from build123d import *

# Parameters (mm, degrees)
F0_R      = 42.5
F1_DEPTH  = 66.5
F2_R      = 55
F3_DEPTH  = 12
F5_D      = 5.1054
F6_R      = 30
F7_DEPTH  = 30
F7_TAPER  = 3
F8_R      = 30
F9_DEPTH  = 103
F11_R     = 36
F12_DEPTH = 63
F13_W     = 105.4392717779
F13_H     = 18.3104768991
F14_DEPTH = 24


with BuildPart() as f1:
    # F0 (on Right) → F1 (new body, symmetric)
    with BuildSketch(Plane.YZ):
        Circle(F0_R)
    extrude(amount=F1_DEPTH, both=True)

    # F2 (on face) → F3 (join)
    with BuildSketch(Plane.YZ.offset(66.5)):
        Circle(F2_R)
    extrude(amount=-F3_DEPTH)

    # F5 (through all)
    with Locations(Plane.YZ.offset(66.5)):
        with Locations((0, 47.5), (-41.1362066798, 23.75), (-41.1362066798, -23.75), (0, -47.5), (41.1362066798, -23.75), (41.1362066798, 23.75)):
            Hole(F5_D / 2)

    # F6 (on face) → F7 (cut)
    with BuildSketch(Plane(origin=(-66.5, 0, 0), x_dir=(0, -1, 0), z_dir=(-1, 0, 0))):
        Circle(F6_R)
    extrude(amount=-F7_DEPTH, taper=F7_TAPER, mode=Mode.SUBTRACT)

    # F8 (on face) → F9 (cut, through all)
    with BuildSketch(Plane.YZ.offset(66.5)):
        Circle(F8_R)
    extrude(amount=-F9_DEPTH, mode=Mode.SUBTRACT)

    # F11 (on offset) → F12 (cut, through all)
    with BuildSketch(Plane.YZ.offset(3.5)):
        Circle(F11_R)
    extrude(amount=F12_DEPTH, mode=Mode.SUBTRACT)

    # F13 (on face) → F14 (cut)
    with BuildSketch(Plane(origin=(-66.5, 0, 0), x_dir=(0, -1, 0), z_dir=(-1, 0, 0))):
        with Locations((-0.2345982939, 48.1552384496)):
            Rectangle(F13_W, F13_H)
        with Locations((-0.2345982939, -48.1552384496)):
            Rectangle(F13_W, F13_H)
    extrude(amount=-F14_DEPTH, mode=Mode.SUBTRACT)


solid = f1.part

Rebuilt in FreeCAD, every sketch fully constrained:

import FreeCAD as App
import Part
import Sketcher
from FreeCAD import Vector
Q = App.Units.Quantity

doc = App.newDocument("Part")
params = doc.addObject("Spreadsheet::Sheet", "Params")
for row, (alias, value) in enumerate([
    ("sketch1_diameter", "85 mm"),
    ("pad1_length", "133 mm"),
    ("sketch2_diameter", "110 mm"),
    ("pad2_length", "12 mm"),
    ("hole_diameter", "5.1054 mm"),
    ("sketch4_diameter", "60 mm"),
    ("pocket1_length", "30 mm"),
    ("pocket1_taper", "-3 deg"),
    ("sketch5_diameter", "60 mm"),
    ("pocket2_length", "103 mm"),
    ("sketch6_diameter", "72 mm"),
    ("pocket4_length", "24 mm"),
], start=1):
    params.set(f"A{row}", alias)
    params.set(f"B{row}", "=" + value)
    params.setAlias(f"B{row}", alias)

body = doc.addObject("PartDesign::Body", "Body")

# Sketch on YZ plane
sketch1 = body.newObject("Sketcher::SketchObject", "Sketch")
sketch1.AttachmentSupport = (doc.getObject("YZ_Plane"), [""])
sketch1.MapMode = "FlatFace"
sketch1.addGeometry(Part.Circle(Vector(0, 0, 0), Vector(0, 0, 1), 42), False)
sketch1.addConstraint([
    Sketcher.Constraint("Coincident", 0, 3, -1, 1),
    Sketcher.Constraint("Diameter", 0, Q("85 mm")),
])
sketch1.setExpression("Constraints[1]", "Params.sketch1_diameter")
pad1 = body.newObject("PartDesign::Pad", "Pad")
pad1.Profile = sketch1
pad1.setExpression("Length", "Params.pad1_length")
pad1.Midplane = True

# Sketch on YZ plane
sketch2 = body.newObject("Sketcher::SketchObject", "Sketch001")
sketch2.AttachmentSupport = (doc.getObject("YZ_Plane"), [""])
sketch2.MapMode = "FlatFace"
sketch2.AttachmentOffset = App.Placement(Vector(0, 0, 66.5), App.Rotation())
sketch2.addGeometry(Part.Circle(Vector(0, 0, 0), Vector(0, 0, 1), 55), False)
sketch2.addConstraint([
    Sketcher.Constraint("Coincident", 0, 3, -1, 1),
    Sketcher.Constraint("Diameter", 0, Q("110 mm")),
])
sketch2.setExpression("Constraints[1]", "Params.sketch2_diameter")
pad2 = body.newObject("PartDesign::Pad", "Pad001")
pad2.Profile = sketch2
pad2.setExpression("Length", "Params.pad2_length")
pad2.Reversed = True

# Sketch on YZ plane
sketch3 = body.newObject("Sketcher::SketchObject", "Sketch002")
sketch3.AttachmentSupport = (doc.getObject("YZ_Plane"), [""])
sketch3.MapMode = "FlatFace"
sketch3.AttachmentOffset = App.Placement(Vector(0, 0, 66.5), App.Rotation())
sketch3.addGeometry([
    Part.Circle(Vector(0, 47.5, 0), Vector(0, 0, 1), 2.6),  # 0
    Part.Circle(Vector(-41.1, 23.8, 0), Vector(0, 0, 1), 2.6),  # 1
    Part.Circle(Vector(-41.1, -23.8, 0), Vector(0, 0, 1), 2.6),  # 2
    Part.Circle(Vector(0, -47.5, 0), Vector(0, 0, 1), 2.6),  # 3
    Part.Circle(Vector(41.1, -23.8, 0), Vector(0, 0, 1), 2.6),  # 4
    Part.Circle(Vector(41.1, 23.8, 0), Vector(0, 0, 1), 2.6),  # 5
], False)
sketch3.addConstraint([
    Sketcher.Constraint("Equal", 0, 1),
    Sketcher.Constraint("Equal", 1, 2),
    Sketcher.Constraint("Equal", 2, 3),
    Sketcher.Constraint("Equal", 3, 4),
    Sketcher.Constraint("Equal", 4, 5),
    Sketcher.Constraint("Symmetric", 0, 3, 3, 3, -1, 1),
    Sketcher.Constraint("Symmetric", 1, 3, 4, 3, -1, 1),
    Sketcher.Constraint("Symmetric", 2, 3, 5, 3, -1, 1),
    Sketcher.Constraint("Symmetric", 2, 3, 4, 3, -2),
    Sketcher.Constraint("PointOnObject", 0, 3, -2),
    Sketcher.Constraint("DistanceY", 3, 3, 0, 3, Q("95 mm")),
    Sketcher.Constraint("Diameter", 0, Q("5.1054 mm")),
    Sketcher.Constraint("DistanceY", 2, 3, 1, 3, Q("47.5 mm")),
    Sketcher.Constraint("DistanceX", 1, 3, -1, 1, Q("41.136207 mm")),
])
doc.recompute()
hole = body.newObject("PartDesign::Hole", "Hole")
hole.Profile = sketch3
hole.ThreadType = "None"
hole.setExpression("Diameter", "Params.hole_diameter")
hole.DepthType = "ThroughAll"

# Sketch on YZ plane
sketch4 = body.newObject("Sketcher::SketchObject", "Sketch003")
sketch4.AttachmentSupport = (doc.getObject("YZ_Plane"), [""])
sketch4.MapMode = "FlatFace"
sketch4.AttachmentOffset = App.Placement(Vector(0, 0, -66.5), App.Rotation())
sketch4.addGeometry(Part.Circle(Vector(0, 0, 0), Vector(0, 0, 1), 30), False)
sketch4.addConstraint([
    Sketcher.Constraint("Coincident", 0, 3, -1, 1),
    Sketcher.Constraint("Diameter", 0, Q("60 mm")),
])
sketch4.setExpression("Constraints[1]", "Params.sketch4_diameter")
pocket1 = body.newObject("PartDesign::Pocket", "Pocket")
pocket1.Profile = sketch4
pocket1.setExpression("Length", "Params.pocket1_length")
pocket1.Reversed = True
pocket1.setExpression("TaperAngle", "Params.pocket1_taper")

# Sketch on YZ plane
sketch5 = body.newObject("Sketcher::SketchObject", "Sketch004")
sketch5.AttachmentSupport = (doc.getObject("YZ_Plane"), [""])
sketch5.MapMode = "FlatFace"
sketch5.AttachmentOffset = App.Placement(Vector(0, 0, 66.5), App.Rotation())
sketch5.addGeometry(Part.Circle(Vector(0, 0, 0), Vector(0, 0, 1), 30), False)
sketch5.addConstraint([
    Sketcher.Constraint("Coincident", 0, 3, -1, 1),
    Sketcher.Constraint("Diameter", 0, Q("60 mm")),
])
sketch5.setExpression("Constraints[1]", "Params.sketch5_diameter")
pocket2 = body.newObject("PartDesign::Pocket", "Pocket001")
pocket2.Profile = sketch5
pocket2.setExpression("Length", "Params.pocket2_length")

# Sketch on YZ plane
sketch6 = body.newObject("Sketcher::SketchObject", "Sketch005")
sketch6.AttachmentSupport = (doc.getObject("YZ_Plane"), [""])
sketch6.MapMode = "FlatFace"
sketch6.AttachmentOffset = App.Placement(Vector(0, 0, 3.5), App.Rotation())
sketch6.addGeometry(Part.Circle(Vector(0, 0, 0), Vector(0, 0, 1), 36), False)
sketch6.addConstraint([
    Sketcher.Constraint("Coincident", 0, 3, -1, 1),
    Sketcher.Constraint("Diameter", 0, Q("72 mm")),
])
sketch6.setExpression("Constraints[1]", "Params.sketch6_diameter")
pocket3 = body.newObject("PartDesign::Pocket", "Pocket002")
pocket3.Profile = sketch6
pocket3.Type = "ThroughAll"
pocket3.Reversed = True

# Sketch on YZ plane
sketch7 = body.newObject("Sketcher::SketchObject", "Sketch006")
sketch7.AttachmentSupport = (doc.getObject("YZ_Plane"), [""])
sketch7.MapMode = "FlatFace"
sketch7.AttachmentOffset = App.Placement(Vector(0, 0, -66.5), App.Rotation())
sketch7.addGeometry([
    Part.LineSegment(Vector(53, 57, 0), Vector(53, 39, 0)),  # 0
    Part.LineSegment(Vector(53, 39, 0), Vector(-52, 39, 0)),  # 1
    Part.LineSegment(Vector(-52, 39, 0), Vector(-52, 57, 0)),  # 2
    Part.LineSegment(Vector(-52, 57, 0), Vector(53, 57, 0)),  # 3
    Part.LineSegment(Vector(53, -39, 0), Vector(53, -57, 0)),  # 4
    Part.LineSegment(Vector(53, -57, 0), Vector(-52, -57, 0)),  # 5
    Part.LineSegment(Vector(-52, -57, 0), Vector(-52, -39, 0)),  # 6
    Part.LineSegment(Vector(-52, -39, 0), Vector(53, -39, 0)),  # 7
], False)
sketch7.addConstraint([
    Sketcher.Constraint("Coincident", 0, 2, 1, 1),
    Sketcher.Constraint("Coincident", 1, 2, 2, 1),
    Sketcher.Constraint("Coincident", 2, 2, 3, 1),
    Sketcher.Constraint("Coincident", 3, 2, 0, 1),
    Sketcher.Constraint("Coincident", 4, 2, 5, 1),
    Sketcher.Constraint("Coincident", 5, 2, 6, 1),
    Sketcher.Constraint("Coincident", 6, 2, 7, 1),
    Sketcher.Constraint("Coincident", 7, 2, 4, 1),
    Sketcher.Constraint("Vertical", 0),
    Sketcher.Constraint("Horizontal", 1),
    Sketcher.Constraint("Vertical", 2),
    Sketcher.Constraint("Horizontal", 3),
    Sketcher.Constraint("Vertical", 4),
    Sketcher.Constraint("Horizontal", 5),
    Sketcher.Constraint("Vertical", 6),
    Sketcher.Constraint("Horizontal", 7),
    Sketcher.Constraint("Symmetric", 3, 2, 4, 2, -1),
    Sketcher.Constraint("Symmetric", 1, 2, 6, 2, -1),
    Sketcher.Constraint("DistanceY", -1, 1, 0, 2, Q("39 mm")),
    Sketcher.Constraint("DistanceX", 1, 2, 1, 1, Q("105.439272 mm")),
    Sketcher.Constraint("DistanceY", 0, 2, 0, 1, Q("18.310477 mm")),
    Sketcher.Constraint("DistanceX", -1, 1, 0, 2, Q("52.954234 mm")),
])
pocket4 = body.newObject("PartDesign::Pocket", "Pocket003")
pocket4.Profile = sketch7
pocket4.setExpression("Length", "Params.pocket4_length")
pocket4.Reversed = True

doc.recompute()
